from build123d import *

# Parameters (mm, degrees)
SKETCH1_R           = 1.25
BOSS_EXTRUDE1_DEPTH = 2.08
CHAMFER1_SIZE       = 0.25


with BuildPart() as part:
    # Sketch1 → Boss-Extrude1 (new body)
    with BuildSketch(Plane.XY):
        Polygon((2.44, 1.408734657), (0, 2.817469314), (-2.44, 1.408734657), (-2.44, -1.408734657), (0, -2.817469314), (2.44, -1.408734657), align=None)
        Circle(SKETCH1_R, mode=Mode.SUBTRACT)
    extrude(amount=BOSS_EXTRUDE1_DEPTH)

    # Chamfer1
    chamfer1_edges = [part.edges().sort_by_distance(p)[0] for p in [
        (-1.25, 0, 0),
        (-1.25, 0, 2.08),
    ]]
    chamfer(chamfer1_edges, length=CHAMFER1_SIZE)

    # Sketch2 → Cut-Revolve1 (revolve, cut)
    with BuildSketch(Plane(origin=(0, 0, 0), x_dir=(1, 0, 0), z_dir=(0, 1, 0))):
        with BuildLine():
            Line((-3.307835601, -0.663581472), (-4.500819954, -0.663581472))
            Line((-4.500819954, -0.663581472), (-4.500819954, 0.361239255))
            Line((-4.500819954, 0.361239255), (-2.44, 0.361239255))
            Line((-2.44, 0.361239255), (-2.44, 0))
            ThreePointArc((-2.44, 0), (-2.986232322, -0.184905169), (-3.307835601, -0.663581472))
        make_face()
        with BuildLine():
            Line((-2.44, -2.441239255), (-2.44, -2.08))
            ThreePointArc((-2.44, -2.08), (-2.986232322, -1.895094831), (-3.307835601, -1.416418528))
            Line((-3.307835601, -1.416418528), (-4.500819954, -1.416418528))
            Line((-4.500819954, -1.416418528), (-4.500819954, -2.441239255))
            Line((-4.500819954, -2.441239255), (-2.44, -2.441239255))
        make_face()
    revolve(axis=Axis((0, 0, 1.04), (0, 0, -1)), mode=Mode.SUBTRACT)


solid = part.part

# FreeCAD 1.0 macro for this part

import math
import FreeCAD as App
import Part
import Sketcher
Q = App.Units.Quantity


def edges_at(feature, points):
    """Names of the edges that pass closest to the given points."""
    edges = feature.Shape.Edges
    near = lambda p: min(range(len(edges)), key=lambda i: edges[i].distToShape(Part.Vertex(*p))[0])
    return sorted({f"Edge{near(p) + 1}" for p in points})

doc = App.newDocument("Part")
body = doc.addObject("PartDesign::Body", "Body")

# Sketch on XY plane
sketch1 = body.newObject("Sketcher::SketchObject", "Sketch")
sketch1.AttachmentSupport = (doc.getObject("XY_Plane"), [""])
sketch1.MapMode = "FlatFace"
sketch1.addGeometry(Part.LineSegment(App.Vector(2.44, 1.408735, 0), App.Vector(0, 2.817469, 0)), False)
sketch1.addGeometry(Part.LineSegment(App.Vector(0, 2.817469, 0), App.Vector(-2.44, 1.408735, 0)), False)
sketch1.addGeometry(Part.LineSegment(App.Vector(-2.44, 1.408735, 0), App.Vector(-2.44, -1.408735, 0)), False)
sketch1.addGeometry(Part.LineSegment(App.Vector(-2.44, -1.408735, 0), App.Vector(0, -2.817469, 0)), False)
sketch1.addGeometry(Part.LineSegment(App.Vector(0, -2.817469, 0), App.Vector(2.44, -1.408735, 0)), False)
sketch1.addGeometry(Part.LineSegment(App.Vector(2.44, -1.408735, 0), App.Vector(2.44, 1.408735, 0)), False)
sketch1.addGeometry(Part.Circle(App.Vector(0, 0, 0), App.Vector(0, 0, 1), 1.25), False)
sketch1.addConstraint(Sketcher.Constraint("Coincident", 0, 2, 1, 1))
sketch1.addConstraint(Sketcher.Constraint("Coincident", 1, 2, 2, 1))
sketch1.addConstraint(Sketcher.Constraint("Coincident", 2, 2, 3, 1))
sketch1.addConstraint(Sketcher.Constraint("Coincident", 3, 2, 4, 1))
sketch1.addConstraint(Sketcher.Constraint("Coincident", 4, 2, 5, 1))
sketch1.addConstraint(Sketcher.Constraint("Coincident", 5, 2, 0, 1))
sketch1.addConstraint(Sketcher.Constraint("Vertical", 2))
sketch1.addConstraint(Sketcher.Constraint("Vertical", 5))
sketch1.addConstraint(Sketcher.Constraint("Coincident", 6, 3, -1, 1))
sketch1.addConstraint(Sketcher.Constraint("Symmetric", 0, 2, 3, 2, -1, 1))
sketch1.addConstraint(Sketcher.Constraint("Symmetric", 1, 2, 4, 2, -1, 1))
sketch1.addConstraint(Sketcher.Constraint("PointOnObject", 0, 2, -2))
sketch1.addConstraint(Sketcher.Constraint("Parallel", 0, 3))
sketch1.addConstraint(Sketcher.Constraint("Horizontal", 2, 2, 4, 2))
sketch1.addConstraint(Sketcher.Constraint("Diameter", 6, Q("2.5 mm")))
sketch1.addConstraint(Sketcher.Constraint("Angle", 0, Q("150 deg")))
sketch1.addConstraint(Sketcher.Constraint("DistanceX", 1, 2, -1, 1, Q("2.44 mm")))
sketch1.addConstraint(Sketcher.Constraint("DistanceY", 2, 2, 2, 1, Q("2.817469 mm")))
pad1 = body.newObject("PartDesign::Pad", "Pad")
pad1.Profile = sketch1
pad1.Length = 2.08
doc.recompute()

chamfer = body.newObject("PartDesign::Chamfer", "Chamfer")
chamfer.Base = (pad1, edges_at(pad1, [(-1.25, 0, 0), (-1.25, 0, 2.08)]))
chamfer.Size = 0.25

# Sketch on XZ plane
sketch2 = body.newObject("Sketcher::SketchObject", "Sketch001")
sketch2.AttachmentSupport = (doc.getObject("XZ_Plane"), [""])
sketch2.MapMode = "FlatFace"
sketch2.addGeometry(Part.LineSegment(App.Vector(-4.50082, 0.663581, 0), App.Vector(-3.307836, 0.663581, 0)), False)
sketch2.addGeometry(Part.ArcOfCircle(Part.Circle(App.Vector(-2.44, 0.899271, 0), App.Vector(0, 0, 1), 0.899271), math.radians(-164.805921), math.radians(-90)), False)
sketch2.addGeometry(Part.LineSegment(App.Vector(-2.44, 0, 0), App.Vector(-2.44, -0.361239, 0)), False)
sketch2.addGeometry(Part.LineSegment(App.Vector(-2.44, -0.361239, 0), App.Vector(-4.50082, -0.361239, 0)), False)
sketch2.addGeometry(Part.LineSegment(App.Vector(-4.50082, -0.361239, 0), App.Vector(-4.50082, 0.663581, 0)), False)
sketch2.addGeometry(Part.LineSegment(App.Vector(-2.44, 2.441239, 0), App.Vector(-2.44, 2.08, 0)), False)
sketch2.addGeometry(Part.ArcOfCircle(Part.Circle(App.Vector(-2.44, 1.180729, 0), App.Vector(0, 0, 1), 0.899271), math.radians(90), math.radians(164.805921)), False)
sketch2.addGeometry(Part.LineSegment(App.Vector(-3.307836, 1.416419, 0), App.Vector(-4.50082, 1.416419, 0)), False)
sketch2.addGeometry(Part.LineSegment(App.Vector(-4.50082, 1.416419, 0), App.Vector(-4.50082, 2.441239, 0)), False)
sketch2.addGeometry(Part.LineSegment(App.Vector(-4.50082, 2.441239, 0), App.Vector(-2.44, 2.441239, 0)), False)
sketch2.addConstraint(Sketcher.Constraint("Coincident", 0, 2, 1, 1))
sketch2.addConstraint(Sketcher.Constraint("Coincident", 1, 2, 2, 1))
sketch2.addConstraint(Sketcher.Constraint("Coincident", 2, 2, 3, 1))
sketch2.addConstraint(Sketcher.Constraint("Coincident", 3, 2, 4, 1))
sketch2.addConstraint(Sketcher.Constraint("Coincident", 4, 2, 0, 1))
sketch2.addConstraint(Sketcher.Constraint("Coincident", 5, 2, 6, 1))
sketch2.addConstraint(Sketcher.Constraint("Coincident", 6, 2, 7, 1))
sketch2.addConstraint(Sketcher.Constraint("Coincident", 7, 2, 8, 1))
sketch2.addConstraint(Sketcher.Constraint("Coincident", 8, 2, 9, 1))
sketch2.addConstraint(Sketcher.Constraint("Coincident", 9, 2, 5, 1))
sketch2.addConstraint(Sketcher.Constraint("Horizontal", 0))
sketch2.addConstraint(Sketcher.Constraint("Vertical", 2))
sketch2.addConstraint(Sketcher.Constraint("Horizontal", 3))
sketch2.addConstraint(Sketcher.Constraint("Vertical", 4))
sketch2.addConstraint(Sketcher.Constraint("Vertical", 5))
sketch2.addConstraint(Sketcher.Constraint("Horizontal", 7))
sketch2.addConstraint(Sketcher.Constraint("Vertical", 8))
sketch2.addConstraint(Sketcher.Constraint("Horizontal", 9))
sketch2.addConstraint(Sketcher.Constraint("Equal", 1, 6))
sketch2.addConstraint(Sketcher.Constraint("PointOnObject", 1, 2, -1))
sketch2.addConstraint(Sketcher.Constraint("Vertical", 1, 3, 6, 3))
sketch2.addConstraint(Sketcher.Constraint("Vertical", 6, 3, 1, 2))
sketch2.addConstraint(Sketcher.Constraint("Vertical", 2, 2, 5, 2))
sketch2.addConstraint(Sketcher.Constraint("Vertical", 0, 2, 6, 2))
sketch2.addConstraint(Sketcher.Constraint("Vertical", 4, 2, 7, 2))
sketch2.addConstraint(Sketcher.Constraint("Equal", 2, 5))
sketch2.addConstraint(Sketcher.Constraint("DistanceX", 1, 3, -1, 1, Q("2.44 mm")))
sketch2.addConstraint(Sketcher.Constraint("DistanceY", -1, 1, 5, 2, Q("2.08 mm")))
sketch2.addConstraint(Sketcher.Constraint("Radius", 1, Q("0.899271 mm")))
sketch2.addConstraint(Sketcher.Constraint("DistanceX", 3, 2, 3, 1, Q("2.06082 mm")))
sketch2.addConstraint(Sketcher.Constraint("DistanceY", 2, 2, 2, 1, Q("0.361239 mm")))
sketch2.addConstraint(Sketcher.Constraint("DistanceY", 4, 1, 4, 2, Q("1.024821 mm")))
groove = body.newObject("PartDesign::Groove", "Groove")
groove.Profile = sketch2
groove.ReferenceAxis = (sketch2, ["V_Axis"])
groove.Angle = 360

doc.recompute()
